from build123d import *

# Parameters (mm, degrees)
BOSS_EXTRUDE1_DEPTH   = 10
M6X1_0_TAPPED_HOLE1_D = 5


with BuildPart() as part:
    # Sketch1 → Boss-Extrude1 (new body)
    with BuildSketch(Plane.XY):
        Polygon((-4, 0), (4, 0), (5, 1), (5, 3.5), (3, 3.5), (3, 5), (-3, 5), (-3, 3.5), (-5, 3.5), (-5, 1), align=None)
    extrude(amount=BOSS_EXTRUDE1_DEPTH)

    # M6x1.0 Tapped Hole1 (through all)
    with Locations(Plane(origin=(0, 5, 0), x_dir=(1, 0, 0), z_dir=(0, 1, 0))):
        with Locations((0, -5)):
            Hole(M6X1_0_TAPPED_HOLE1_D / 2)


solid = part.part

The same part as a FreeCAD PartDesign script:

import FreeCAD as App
import Part
import Sketcher

V = App.Vector


def add_polygon(sketch, points):
    """Adds a closed chain of lines whose ends are joined by coincident constraints."""
    first, n = sketch.GeometryCount, len(points)
    for a, b in zip(points, points[1:] + points[:1]):
        sketch.addGeometry(Part.LineSegment(App.Vector(*a, 0), App.Vector(*b, 0)), False)
    for i in range(n):
        sketch.addConstraint(Sketcher.Constraint("Coincident", first + i, 2, first + (i + 1) % n, 1))

doc = App.newDocument("Part")
body = doc.addObject("PartDesign::Body", "Body")

# Sketch on XY plane
sketch1 = body.newObject("Sketcher::SketchObject", "Sketch")
sketch1.AttachmentSupport = (doc.getObject("XY_Plane"), [""])
sketch1.MapMode = "FlatFace"
add_polygon(sketch1, [(-4, 0), (4, 0), (5, 1), (5, 3.5), (3, 3.5), (3, 5), (-3, 5), (-3, 3.5), (-5, 3.5), (-5, 1)])  # lines 0-9
sketch1.addConstraint(Sketcher.Constraint("Horizontal", 0))
sketch1.addConstraint(Sketcher.Constraint("Vertical", 2))
sketch1.addConstraint(Sketcher.Constraint("Horizontal", 3))
sketch1.addConstraint(Sketcher.Constraint("Vertical", 4))
sketch1.addConstraint(Sketcher.Constraint("Horizontal", 5))
sketch1.addConstraint(Sketcher.Constraint("Vertical", 6))
sketch1.addConstraint(Sketcher.Constraint("Horizontal", 7))
sketch1.addConstraint(Sketcher.Constraint("Vertical", 8))
sketch1.addConstraint(Sketcher.Constraint("Symmetric", 0, 2, 9, 2, -1, 1))
sketch1.addConstraint(Sketcher.Constraint("Symmetric", 3, 2, 6, 2, -2))
sketch1.addConstraint(Sketcher.Constraint("Symmetric", 1, 2, 8, 2, -2))
sketch1.addConstraint(Sketcher.Constraint("Perpendicular", 1, 9))
sketch1.addConstraint(Sketcher.Constraint("DistanceX", 0, 1, 0, 2, 8.0))
sketch1.addConstraint(Sketcher.Constraint("DistanceX", 3, 2, 3, 1, 2.0))
sketch1.addConstraint(Sketcher.Constraint("DistanceX", 5, 2, 5, 1, 6.0))
sketch1.addConstraint(Sketcher.Constraint("DistanceY", 2, 1, 2, 2, 2.5))
sketch1.addConstraint(Sketcher.Constraint("DistanceY", 4, 1, 4, 2, 1.5))
pad1 = body.newObject("PartDesign::Pad", "Pad")
pad1.Profile = sketch1
pad1.Length = 10

# Sketch on XZ plane
sketch2 = body.newObject("Sketcher::SketchObject", "Sketch001")
sketch2.AttachmentSupport = (doc.getObject("XZ_Plane"), [""])
sketch2.MapMode = "FlatFace"
sketch2.AttachmentOffset = App.Placement(V(0, 0, -5), App.Rotation())
sketch2.addGeometry(Part.Circle(V(0, 5, 0), V(0, 0, 1), 2.5), False)
sketch2.addConstraint(Sketcher.Constraint("PointOnObject", 0, 3, -2))
sketch2.addConstraint(Sketcher.Constraint("Diameter", 0, 5.0))
sketch2.addConstraint(Sketcher.Constraint("DistanceY", -1, 1, 0, 3, 5.0))
doc.recompute()
hole = body.newObject("PartDesign::Hole", "Hole")
hole.Profile = sketch2
hole.ThreadType = "None"
hole.Diameter = 5
hole.DepthType = "ThroughAll"
hole.Reversed = True

doc.recompute()
